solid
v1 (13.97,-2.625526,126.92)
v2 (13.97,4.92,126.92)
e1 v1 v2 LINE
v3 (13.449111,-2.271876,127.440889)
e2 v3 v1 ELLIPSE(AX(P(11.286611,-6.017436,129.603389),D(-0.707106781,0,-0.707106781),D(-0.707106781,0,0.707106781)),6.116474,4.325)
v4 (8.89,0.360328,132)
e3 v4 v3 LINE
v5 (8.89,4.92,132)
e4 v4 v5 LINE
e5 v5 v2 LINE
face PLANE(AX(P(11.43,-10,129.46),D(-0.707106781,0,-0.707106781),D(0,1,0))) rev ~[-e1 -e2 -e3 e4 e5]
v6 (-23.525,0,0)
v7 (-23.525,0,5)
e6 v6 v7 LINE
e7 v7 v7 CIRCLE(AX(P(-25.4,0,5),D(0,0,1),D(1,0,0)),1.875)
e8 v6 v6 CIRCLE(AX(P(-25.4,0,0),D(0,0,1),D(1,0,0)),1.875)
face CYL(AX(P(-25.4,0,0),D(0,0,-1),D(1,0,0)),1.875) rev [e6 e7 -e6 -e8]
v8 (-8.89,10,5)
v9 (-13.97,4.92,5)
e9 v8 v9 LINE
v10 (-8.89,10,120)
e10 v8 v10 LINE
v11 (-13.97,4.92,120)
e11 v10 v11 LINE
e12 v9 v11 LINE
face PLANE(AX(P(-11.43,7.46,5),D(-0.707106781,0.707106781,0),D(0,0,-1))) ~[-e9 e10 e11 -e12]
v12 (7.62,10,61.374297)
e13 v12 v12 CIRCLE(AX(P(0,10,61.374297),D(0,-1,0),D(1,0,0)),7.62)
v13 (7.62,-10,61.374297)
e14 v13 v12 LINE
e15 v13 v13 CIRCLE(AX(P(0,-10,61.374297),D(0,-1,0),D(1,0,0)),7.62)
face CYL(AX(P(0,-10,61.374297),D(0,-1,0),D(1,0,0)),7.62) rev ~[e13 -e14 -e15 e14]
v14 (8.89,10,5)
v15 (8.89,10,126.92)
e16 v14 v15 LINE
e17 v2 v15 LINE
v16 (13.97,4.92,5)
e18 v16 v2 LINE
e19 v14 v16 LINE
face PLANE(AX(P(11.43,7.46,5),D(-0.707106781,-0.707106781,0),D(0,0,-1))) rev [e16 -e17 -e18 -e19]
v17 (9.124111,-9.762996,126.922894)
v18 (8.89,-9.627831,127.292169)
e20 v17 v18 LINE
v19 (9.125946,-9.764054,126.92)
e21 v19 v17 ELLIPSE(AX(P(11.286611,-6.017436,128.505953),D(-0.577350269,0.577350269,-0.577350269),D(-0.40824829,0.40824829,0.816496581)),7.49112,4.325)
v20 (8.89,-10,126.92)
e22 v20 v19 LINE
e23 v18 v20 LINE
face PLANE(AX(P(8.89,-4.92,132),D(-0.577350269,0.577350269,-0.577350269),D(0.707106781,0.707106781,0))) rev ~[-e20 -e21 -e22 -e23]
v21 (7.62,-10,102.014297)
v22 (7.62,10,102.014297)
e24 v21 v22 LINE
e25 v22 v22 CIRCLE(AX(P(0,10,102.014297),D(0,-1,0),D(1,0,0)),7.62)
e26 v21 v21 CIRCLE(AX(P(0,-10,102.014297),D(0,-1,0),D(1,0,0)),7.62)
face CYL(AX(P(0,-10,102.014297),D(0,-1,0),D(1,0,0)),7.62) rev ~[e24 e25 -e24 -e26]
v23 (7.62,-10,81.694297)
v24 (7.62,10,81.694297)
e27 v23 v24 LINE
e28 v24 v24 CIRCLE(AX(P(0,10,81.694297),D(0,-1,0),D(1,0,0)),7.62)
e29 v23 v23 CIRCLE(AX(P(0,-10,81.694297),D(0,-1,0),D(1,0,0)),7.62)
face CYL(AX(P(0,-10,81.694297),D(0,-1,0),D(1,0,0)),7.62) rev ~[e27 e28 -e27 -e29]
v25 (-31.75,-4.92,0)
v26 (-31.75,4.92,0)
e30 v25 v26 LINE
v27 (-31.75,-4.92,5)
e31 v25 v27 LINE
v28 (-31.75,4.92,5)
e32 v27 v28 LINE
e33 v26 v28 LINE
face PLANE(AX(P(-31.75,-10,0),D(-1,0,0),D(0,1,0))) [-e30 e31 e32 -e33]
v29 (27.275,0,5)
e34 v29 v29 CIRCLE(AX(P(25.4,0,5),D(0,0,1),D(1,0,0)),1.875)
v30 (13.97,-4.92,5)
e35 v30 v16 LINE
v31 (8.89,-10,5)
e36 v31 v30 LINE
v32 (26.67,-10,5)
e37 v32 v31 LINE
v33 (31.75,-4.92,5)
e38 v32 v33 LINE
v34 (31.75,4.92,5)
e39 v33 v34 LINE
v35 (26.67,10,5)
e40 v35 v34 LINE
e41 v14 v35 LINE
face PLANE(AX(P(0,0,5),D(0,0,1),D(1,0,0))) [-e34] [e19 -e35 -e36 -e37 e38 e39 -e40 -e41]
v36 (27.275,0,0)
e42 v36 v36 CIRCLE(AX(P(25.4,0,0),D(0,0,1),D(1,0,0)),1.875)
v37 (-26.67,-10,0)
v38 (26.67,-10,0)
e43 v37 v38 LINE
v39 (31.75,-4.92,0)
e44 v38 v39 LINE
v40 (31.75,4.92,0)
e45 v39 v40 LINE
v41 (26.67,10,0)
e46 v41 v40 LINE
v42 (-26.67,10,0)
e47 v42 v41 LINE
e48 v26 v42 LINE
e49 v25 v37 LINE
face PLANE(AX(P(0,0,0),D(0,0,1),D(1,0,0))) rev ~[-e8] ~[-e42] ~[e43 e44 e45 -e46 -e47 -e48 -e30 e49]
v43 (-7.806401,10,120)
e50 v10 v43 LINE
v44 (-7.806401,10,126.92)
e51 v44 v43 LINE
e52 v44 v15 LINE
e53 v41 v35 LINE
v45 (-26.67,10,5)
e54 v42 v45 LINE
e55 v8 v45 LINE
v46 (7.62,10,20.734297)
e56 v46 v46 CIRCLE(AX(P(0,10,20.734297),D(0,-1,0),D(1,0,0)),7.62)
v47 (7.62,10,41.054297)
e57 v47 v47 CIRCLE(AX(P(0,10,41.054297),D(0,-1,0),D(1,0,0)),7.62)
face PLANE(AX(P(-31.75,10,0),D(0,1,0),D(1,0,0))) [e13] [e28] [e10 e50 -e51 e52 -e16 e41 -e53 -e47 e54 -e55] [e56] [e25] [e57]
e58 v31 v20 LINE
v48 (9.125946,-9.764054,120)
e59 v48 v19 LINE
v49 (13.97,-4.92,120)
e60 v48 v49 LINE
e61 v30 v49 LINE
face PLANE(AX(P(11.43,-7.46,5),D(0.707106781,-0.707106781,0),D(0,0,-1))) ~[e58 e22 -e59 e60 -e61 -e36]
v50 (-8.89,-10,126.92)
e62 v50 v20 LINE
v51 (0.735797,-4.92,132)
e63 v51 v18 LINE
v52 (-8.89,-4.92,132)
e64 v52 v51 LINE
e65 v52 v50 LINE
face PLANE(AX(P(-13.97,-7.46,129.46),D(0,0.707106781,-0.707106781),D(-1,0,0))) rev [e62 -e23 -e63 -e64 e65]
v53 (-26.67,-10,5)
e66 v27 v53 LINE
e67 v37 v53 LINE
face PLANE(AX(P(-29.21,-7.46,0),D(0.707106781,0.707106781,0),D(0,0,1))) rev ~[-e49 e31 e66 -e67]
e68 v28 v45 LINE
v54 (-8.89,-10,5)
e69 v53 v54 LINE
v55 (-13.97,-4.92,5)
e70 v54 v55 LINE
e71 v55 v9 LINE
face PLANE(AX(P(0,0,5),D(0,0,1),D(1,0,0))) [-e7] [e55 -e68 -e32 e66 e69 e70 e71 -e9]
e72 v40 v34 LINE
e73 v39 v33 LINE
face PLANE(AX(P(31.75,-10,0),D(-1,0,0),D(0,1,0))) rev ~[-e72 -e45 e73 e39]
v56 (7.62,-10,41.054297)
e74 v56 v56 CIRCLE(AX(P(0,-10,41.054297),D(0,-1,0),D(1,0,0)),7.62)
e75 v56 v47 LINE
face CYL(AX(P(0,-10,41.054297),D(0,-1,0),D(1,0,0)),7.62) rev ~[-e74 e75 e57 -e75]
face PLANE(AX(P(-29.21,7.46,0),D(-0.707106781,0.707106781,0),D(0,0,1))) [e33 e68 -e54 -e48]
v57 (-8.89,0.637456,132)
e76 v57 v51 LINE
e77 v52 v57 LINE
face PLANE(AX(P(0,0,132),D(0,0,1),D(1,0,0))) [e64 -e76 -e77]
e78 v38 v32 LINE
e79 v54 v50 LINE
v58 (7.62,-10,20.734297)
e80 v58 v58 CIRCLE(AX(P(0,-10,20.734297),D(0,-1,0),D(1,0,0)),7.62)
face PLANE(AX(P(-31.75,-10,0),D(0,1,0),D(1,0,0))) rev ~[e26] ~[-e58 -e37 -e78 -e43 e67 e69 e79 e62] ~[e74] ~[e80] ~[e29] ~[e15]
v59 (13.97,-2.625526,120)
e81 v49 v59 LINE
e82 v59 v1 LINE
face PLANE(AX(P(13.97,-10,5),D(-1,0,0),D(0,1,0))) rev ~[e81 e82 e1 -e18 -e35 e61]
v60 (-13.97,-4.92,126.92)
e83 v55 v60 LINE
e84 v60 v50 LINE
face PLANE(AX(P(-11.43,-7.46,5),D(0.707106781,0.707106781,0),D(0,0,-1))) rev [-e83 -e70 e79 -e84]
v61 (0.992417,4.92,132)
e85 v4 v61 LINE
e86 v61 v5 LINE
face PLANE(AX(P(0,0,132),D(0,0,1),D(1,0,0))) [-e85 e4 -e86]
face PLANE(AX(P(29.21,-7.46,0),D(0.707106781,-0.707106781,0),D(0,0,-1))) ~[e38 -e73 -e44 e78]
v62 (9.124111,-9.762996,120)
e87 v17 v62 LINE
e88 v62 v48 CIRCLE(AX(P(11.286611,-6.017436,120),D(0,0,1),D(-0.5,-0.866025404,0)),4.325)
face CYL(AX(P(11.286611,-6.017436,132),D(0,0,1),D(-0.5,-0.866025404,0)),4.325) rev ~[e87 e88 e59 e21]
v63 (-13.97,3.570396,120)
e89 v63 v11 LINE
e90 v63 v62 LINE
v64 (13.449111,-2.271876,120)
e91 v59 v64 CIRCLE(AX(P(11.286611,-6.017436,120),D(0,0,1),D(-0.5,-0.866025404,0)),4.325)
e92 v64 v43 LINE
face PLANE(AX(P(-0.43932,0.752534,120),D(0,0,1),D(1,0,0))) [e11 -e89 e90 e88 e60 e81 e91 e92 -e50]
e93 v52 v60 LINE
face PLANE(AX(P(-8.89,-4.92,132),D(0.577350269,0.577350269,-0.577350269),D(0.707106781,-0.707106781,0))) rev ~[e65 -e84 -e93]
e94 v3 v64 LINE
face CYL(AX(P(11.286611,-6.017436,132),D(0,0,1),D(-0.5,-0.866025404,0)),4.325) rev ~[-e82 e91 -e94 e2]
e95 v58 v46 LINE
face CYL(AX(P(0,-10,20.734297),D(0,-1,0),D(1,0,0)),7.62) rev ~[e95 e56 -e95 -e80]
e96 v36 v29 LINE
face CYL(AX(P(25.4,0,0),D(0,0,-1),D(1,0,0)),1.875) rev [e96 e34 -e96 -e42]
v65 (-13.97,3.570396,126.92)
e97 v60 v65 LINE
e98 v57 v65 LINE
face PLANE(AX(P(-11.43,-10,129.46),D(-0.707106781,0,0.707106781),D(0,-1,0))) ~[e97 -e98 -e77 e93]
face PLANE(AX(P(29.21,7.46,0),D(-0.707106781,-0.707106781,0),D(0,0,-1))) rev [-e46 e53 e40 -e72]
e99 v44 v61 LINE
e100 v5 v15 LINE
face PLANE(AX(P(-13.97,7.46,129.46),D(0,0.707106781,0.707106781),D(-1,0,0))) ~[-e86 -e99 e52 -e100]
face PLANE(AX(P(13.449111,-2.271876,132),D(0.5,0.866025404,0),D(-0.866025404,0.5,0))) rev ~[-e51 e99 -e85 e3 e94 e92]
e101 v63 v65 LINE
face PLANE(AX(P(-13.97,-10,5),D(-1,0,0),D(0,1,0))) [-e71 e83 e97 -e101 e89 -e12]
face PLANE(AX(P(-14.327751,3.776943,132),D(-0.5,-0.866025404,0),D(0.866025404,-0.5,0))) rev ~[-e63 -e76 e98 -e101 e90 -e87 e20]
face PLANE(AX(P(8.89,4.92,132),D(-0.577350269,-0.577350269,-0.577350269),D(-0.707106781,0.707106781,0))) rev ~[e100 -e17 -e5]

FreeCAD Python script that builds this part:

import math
import FreeCAD as App
import Part
import Sketcher
from FreeCAD import Vector
Q = App.Units.Quantity


def edges_at(feature, points):
    """Names of the edges that pass closest to the given points."""
    edges = feature.Shape.Edges
    near = lambda p: min(range(len(edges)), key=lambda i: edges[i].distToShape(Part.Vertex(*p))[0])
    return sorted({f"Edge{near(p) + 1}" for p in points})

doc = App.newDocument("Part")
body = doc.addObject("PartDesign::Body", "Body")

# Sketch on XY plane
sketch1 = body.newObject("Sketcher::SketchObject", "Sketch")
sketch1.AttachmentSupport = (doc.getObject("XY_Plane"), [""])
sketch1.MapMode = "FlatFace"
sketch1.addGeometry([
    Part.LineSegment(Vector(-31.8, 10, 0), Vector(-31.8, -10, 0)),  # 0
    Part.LineSegment(Vector(-31.8, -10, 0), Vector(31.8, -10, 0)),  # 1
    Part.LineSegment(Vector(31.8, -10, 0), Vector(31.8, 10, 0)),  # 2
    Part.LineSegment(Vector(31.8, 10, 0), Vector(-31.8, 10, 0)),  # 3
    Part.Circle(Vector(-25.4, 0, 0), Vector(0, 0, 1), 1.9),  # 4
    Part.Circle(Vector(25.4, 0, 0), Vector(0, 0, 1), 1.9),  # 5
], False)
sketch1.addConstraint([
    Sketcher.Constraint("Coincident", 0, 2, 1, 1),
    Sketcher.Constraint("Coincident", 1, 2, 2, 1),
    Sketcher.Constraint("Coincident", 2, 2, 3, 1),
    Sketcher.Constraint("Coincident", 3, 2, 0, 1),
    Sketcher.Constraint("Vertical", 0),
    Sketcher.Constraint("Horizontal", 1),
    Sketcher.Constraint("Vertical", 2),
    Sketcher.Constraint("Horizontal", 3),
    Sketcher.Constraint("Equal", 4, 5),
    Sketcher.Constraint("Symmetric", 4, 3, 5, 3, -1, 1),
    Sketcher.Constraint("Symmetric", 0, 2, 2, 2, -1, 1),
    Sketcher.Constraint("PointOnObject", 4, 3, -1),
    Sketcher.Constraint("DistanceX", 1, 1, 1, 2, Q("2.5 in")),
    Sketcher.Constraint("DistanceX", 4, 3, -1, 1, Q("1 in")),
    Sketcher.Constraint("Diameter", 4, 3.75),
    Sketcher.Constraint("DistanceY", 0, 2, 0, 1, 20.0),
])
pad1 = body.newObject("PartDesign::Pad", "Pad")
pad1.Profile = sketch1
pad1.Length = 5

# Sketch on XY plane
sketch2 = body.newObject("Sketcher::SketchObject", "Sketch001")
sketch2.AttachmentSupport = (doc.getObject("XY_Plane"), [""])
sketch2.MapMode = "FlatFace"
sketch2.AttachmentOffset = App.Placement(Vector(0, 0, 5), App.Rotation())
sketch2.addGeometry([
    Part.LineSegment(Vector(-14, 10, 0), Vector(-14, -10, 0)),
    Part.LineSegment(Vector(-14, -10, 0), Vector(14, -10, 0)),
    Part.LineSegment(Vector(14, -10, 0), Vector(14, 10, 0)),
    Part.LineSegment(Vector(14, 10, 0), Vector(-14, 10, 0)),
], False)
sketch2.addConstraint([
    Sketcher.Constraint("Coincident", 0, 2, 1, 1),
    Sketcher.Constraint("Coincident", 1, 2, 2, 1),
    Sketcher.Constraint("Coincident", 2, 2, 3, 1),
    Sketcher.Constraint("Coincident", 3, 2, 0, 1),
    Sketcher.Constraint("Vertical", 0),
    Sketcher.Constraint("Horizontal", 1),
    Sketcher.Constraint("Vertical", 2),
    Sketcher.Constraint("Horizontal", 3),
    Sketcher.Constraint("Symmetric", 0, 2, 2, 2, -1, 1),
    Sketcher.Constraint("DistanceX", 1, 1, 1, 2, Q("1.1 in")),
    Sketcher.Constraint("DistanceY", 0, 2, 0, 1, 20.0),
])
pad2 = body.newObject("PartDesign::Pad", "Pad001")
pad2.Profile = sketch2
pad2.Length = Q("5 in")

# Sketch on XZ plane
sketch3 = body.newObject("Sketcher::SketchObject", "Sketch002")
sketch3.AttachmentSupport = (doc.getObject("XZ_Plane"), [""])
sketch3.MapMode = "FlatFace"
sketch3.AttachmentOffset = App.Placement(Vector(0, 0, 10), App.Rotation())
sketch3.addGeometry([
    Part.Circle(Vector(0, 102, 0), Vector(0, 0, 1), 8),  # 0
    Part.Circle(Vector(0, 82, 0), Vector(0, 0, 1), 8),  # 1
    Part.Circle(Vector(0, 61, 0), Vector(0, 0, 1), 8),  # 2
    Part.Circle(Vector(0, 41, 0), Vector(0, 0, 1), 8),  # 3
    Part.Circle(Vector(0, 21, 0), Vector(0, 0, 1), 8),  # 4
], False)
sketch3.addConstraint([
    Sketcher.Constraint("Equal", 0, 1),
    Sketcher.Constraint("Equal", 1, 2),
    Sketcher.Constraint("Equal", 2, 3),
    Sketcher.Constraint("Equal", 3, 4),
    Sketcher.Constraint("PointOnObject", 0, 3, -2),
    Sketcher.Constraint("PointOnObject", 1, 3, -2),
    Sketcher.Constraint("PointOnObject", 2, 3, -2),
    Sketcher.Constraint("PointOnObject", 3, 3, -2),
    Sketcher.Constraint("PointOnObject", 4, 3, -2),
    Sketcher.Constraint("Diameter", 0, Q("0.6 in")),
    Sketcher.Constraint("DistanceY", 1, 3, 0, 3, Q("0.8 in")),
    Sketcher.Constraint("DistanceY", 2, 3, 1, 3, Q("0.8 in")),
    Sketcher.Constraint("DistanceY", 3, 3, 2, 3, Q("0.8 in")),
    Sketcher.Constraint("DistanceY", 4, 3, 3, 3, Q("0.8 in")),
    Sketcher.Constraint("DistanceY", -1, 1, 0, 3, 102.014297),
])
pocket1 = body.newObject("PartDesign::Pocket", "Pocket")
pocket1.Profile = sketch3
pocket1.Length = Q("1 in")
doc.recompute()

chamfer = body.newObject("PartDesign::Chamfer", "Chamfer")
chamfer.Base = (pocket1, edges_at(pocket1, [
    (-13.97, -10, 68.5),
    (13.97, -10, 68.5),
    (13.97, 10, 68.5),
    (-13.97, 10, 68.5),
    (-13.97, 0, 132),
    (0, -10, 132),
    (13.97, 0, 132),
    (0, 10, 132),
    (-31.75, -10, 2.5),
    (31.75, 10, 2.5),
    (31.75, -10, 2.5),
    (-31.75, 10, 2.5),
]))
chamfer.Size = Q("0.2 in")

# Sketch on XY plane
sketch4 = body.newObject("Sketcher::SketchObject", "Sketch003")
sketch4.AttachmentSupport = (doc.getObject("XY_Plane"), [""])
sketch4.MapMode = "FlatFace"
sketch4.AttachmentOffset = App.Placement(Vector(0, 0, 132), App.Rotation())
sketch4.addGeometry([
    Part.ArcOfCircle(Part.Circle(Vector(11.3, -6, 0), Vector(0, 0, 1), 4.3), math.radians(-120), math.radians(60)),
    Part.LineSegment(Vector(13.4, -2.3, 0), Vector(-10, 11.3, 0)),
    Part.ArcOfCircle(Part.Circle(Vector(-12.2, 7.5, 0), Vector(0, 0, 1), 4.3), math.radians(60), math.radians(240)),
    Part.LineSegment(Vector(-14.3, 3.8, 0), Vector(9.1, -9.8, 0)),
], False)
sketch4.addConstraint([
    Sketcher.Constraint("Tangent", 0, 2, 1, 1),
    Sketcher.Constraint("Tangent", 1, 2, 2, 1),
    Sketcher.Constraint("Tangent", 2, 2, 3, 1),
    Sketcher.Constraint("Tangent", 3, 2, 0, 1),
    Sketcher.Constraint("Equal", 0, 2),
    Sketcher.Constraint("Angle", 1, Q("150 deg")),
    Sketcher.Constraint("Radius", 0, 4.325),
    Sketcher.Constraint("DistanceY", 0, 3, 1, 2, 17.285499),
    Sketcher.Constraint("DistanceX", -1, 1, 0, 3, 11.286611),
    Sketcher.Constraint("DistanceY", 0, 3, -1, 1, 6.017436),
])
pocket2 = body.newObject("PartDesign::Pocket", "Pocket001")
pocket2.Profile = sketch4
pocket2.Length = 12

doc.recompute()
